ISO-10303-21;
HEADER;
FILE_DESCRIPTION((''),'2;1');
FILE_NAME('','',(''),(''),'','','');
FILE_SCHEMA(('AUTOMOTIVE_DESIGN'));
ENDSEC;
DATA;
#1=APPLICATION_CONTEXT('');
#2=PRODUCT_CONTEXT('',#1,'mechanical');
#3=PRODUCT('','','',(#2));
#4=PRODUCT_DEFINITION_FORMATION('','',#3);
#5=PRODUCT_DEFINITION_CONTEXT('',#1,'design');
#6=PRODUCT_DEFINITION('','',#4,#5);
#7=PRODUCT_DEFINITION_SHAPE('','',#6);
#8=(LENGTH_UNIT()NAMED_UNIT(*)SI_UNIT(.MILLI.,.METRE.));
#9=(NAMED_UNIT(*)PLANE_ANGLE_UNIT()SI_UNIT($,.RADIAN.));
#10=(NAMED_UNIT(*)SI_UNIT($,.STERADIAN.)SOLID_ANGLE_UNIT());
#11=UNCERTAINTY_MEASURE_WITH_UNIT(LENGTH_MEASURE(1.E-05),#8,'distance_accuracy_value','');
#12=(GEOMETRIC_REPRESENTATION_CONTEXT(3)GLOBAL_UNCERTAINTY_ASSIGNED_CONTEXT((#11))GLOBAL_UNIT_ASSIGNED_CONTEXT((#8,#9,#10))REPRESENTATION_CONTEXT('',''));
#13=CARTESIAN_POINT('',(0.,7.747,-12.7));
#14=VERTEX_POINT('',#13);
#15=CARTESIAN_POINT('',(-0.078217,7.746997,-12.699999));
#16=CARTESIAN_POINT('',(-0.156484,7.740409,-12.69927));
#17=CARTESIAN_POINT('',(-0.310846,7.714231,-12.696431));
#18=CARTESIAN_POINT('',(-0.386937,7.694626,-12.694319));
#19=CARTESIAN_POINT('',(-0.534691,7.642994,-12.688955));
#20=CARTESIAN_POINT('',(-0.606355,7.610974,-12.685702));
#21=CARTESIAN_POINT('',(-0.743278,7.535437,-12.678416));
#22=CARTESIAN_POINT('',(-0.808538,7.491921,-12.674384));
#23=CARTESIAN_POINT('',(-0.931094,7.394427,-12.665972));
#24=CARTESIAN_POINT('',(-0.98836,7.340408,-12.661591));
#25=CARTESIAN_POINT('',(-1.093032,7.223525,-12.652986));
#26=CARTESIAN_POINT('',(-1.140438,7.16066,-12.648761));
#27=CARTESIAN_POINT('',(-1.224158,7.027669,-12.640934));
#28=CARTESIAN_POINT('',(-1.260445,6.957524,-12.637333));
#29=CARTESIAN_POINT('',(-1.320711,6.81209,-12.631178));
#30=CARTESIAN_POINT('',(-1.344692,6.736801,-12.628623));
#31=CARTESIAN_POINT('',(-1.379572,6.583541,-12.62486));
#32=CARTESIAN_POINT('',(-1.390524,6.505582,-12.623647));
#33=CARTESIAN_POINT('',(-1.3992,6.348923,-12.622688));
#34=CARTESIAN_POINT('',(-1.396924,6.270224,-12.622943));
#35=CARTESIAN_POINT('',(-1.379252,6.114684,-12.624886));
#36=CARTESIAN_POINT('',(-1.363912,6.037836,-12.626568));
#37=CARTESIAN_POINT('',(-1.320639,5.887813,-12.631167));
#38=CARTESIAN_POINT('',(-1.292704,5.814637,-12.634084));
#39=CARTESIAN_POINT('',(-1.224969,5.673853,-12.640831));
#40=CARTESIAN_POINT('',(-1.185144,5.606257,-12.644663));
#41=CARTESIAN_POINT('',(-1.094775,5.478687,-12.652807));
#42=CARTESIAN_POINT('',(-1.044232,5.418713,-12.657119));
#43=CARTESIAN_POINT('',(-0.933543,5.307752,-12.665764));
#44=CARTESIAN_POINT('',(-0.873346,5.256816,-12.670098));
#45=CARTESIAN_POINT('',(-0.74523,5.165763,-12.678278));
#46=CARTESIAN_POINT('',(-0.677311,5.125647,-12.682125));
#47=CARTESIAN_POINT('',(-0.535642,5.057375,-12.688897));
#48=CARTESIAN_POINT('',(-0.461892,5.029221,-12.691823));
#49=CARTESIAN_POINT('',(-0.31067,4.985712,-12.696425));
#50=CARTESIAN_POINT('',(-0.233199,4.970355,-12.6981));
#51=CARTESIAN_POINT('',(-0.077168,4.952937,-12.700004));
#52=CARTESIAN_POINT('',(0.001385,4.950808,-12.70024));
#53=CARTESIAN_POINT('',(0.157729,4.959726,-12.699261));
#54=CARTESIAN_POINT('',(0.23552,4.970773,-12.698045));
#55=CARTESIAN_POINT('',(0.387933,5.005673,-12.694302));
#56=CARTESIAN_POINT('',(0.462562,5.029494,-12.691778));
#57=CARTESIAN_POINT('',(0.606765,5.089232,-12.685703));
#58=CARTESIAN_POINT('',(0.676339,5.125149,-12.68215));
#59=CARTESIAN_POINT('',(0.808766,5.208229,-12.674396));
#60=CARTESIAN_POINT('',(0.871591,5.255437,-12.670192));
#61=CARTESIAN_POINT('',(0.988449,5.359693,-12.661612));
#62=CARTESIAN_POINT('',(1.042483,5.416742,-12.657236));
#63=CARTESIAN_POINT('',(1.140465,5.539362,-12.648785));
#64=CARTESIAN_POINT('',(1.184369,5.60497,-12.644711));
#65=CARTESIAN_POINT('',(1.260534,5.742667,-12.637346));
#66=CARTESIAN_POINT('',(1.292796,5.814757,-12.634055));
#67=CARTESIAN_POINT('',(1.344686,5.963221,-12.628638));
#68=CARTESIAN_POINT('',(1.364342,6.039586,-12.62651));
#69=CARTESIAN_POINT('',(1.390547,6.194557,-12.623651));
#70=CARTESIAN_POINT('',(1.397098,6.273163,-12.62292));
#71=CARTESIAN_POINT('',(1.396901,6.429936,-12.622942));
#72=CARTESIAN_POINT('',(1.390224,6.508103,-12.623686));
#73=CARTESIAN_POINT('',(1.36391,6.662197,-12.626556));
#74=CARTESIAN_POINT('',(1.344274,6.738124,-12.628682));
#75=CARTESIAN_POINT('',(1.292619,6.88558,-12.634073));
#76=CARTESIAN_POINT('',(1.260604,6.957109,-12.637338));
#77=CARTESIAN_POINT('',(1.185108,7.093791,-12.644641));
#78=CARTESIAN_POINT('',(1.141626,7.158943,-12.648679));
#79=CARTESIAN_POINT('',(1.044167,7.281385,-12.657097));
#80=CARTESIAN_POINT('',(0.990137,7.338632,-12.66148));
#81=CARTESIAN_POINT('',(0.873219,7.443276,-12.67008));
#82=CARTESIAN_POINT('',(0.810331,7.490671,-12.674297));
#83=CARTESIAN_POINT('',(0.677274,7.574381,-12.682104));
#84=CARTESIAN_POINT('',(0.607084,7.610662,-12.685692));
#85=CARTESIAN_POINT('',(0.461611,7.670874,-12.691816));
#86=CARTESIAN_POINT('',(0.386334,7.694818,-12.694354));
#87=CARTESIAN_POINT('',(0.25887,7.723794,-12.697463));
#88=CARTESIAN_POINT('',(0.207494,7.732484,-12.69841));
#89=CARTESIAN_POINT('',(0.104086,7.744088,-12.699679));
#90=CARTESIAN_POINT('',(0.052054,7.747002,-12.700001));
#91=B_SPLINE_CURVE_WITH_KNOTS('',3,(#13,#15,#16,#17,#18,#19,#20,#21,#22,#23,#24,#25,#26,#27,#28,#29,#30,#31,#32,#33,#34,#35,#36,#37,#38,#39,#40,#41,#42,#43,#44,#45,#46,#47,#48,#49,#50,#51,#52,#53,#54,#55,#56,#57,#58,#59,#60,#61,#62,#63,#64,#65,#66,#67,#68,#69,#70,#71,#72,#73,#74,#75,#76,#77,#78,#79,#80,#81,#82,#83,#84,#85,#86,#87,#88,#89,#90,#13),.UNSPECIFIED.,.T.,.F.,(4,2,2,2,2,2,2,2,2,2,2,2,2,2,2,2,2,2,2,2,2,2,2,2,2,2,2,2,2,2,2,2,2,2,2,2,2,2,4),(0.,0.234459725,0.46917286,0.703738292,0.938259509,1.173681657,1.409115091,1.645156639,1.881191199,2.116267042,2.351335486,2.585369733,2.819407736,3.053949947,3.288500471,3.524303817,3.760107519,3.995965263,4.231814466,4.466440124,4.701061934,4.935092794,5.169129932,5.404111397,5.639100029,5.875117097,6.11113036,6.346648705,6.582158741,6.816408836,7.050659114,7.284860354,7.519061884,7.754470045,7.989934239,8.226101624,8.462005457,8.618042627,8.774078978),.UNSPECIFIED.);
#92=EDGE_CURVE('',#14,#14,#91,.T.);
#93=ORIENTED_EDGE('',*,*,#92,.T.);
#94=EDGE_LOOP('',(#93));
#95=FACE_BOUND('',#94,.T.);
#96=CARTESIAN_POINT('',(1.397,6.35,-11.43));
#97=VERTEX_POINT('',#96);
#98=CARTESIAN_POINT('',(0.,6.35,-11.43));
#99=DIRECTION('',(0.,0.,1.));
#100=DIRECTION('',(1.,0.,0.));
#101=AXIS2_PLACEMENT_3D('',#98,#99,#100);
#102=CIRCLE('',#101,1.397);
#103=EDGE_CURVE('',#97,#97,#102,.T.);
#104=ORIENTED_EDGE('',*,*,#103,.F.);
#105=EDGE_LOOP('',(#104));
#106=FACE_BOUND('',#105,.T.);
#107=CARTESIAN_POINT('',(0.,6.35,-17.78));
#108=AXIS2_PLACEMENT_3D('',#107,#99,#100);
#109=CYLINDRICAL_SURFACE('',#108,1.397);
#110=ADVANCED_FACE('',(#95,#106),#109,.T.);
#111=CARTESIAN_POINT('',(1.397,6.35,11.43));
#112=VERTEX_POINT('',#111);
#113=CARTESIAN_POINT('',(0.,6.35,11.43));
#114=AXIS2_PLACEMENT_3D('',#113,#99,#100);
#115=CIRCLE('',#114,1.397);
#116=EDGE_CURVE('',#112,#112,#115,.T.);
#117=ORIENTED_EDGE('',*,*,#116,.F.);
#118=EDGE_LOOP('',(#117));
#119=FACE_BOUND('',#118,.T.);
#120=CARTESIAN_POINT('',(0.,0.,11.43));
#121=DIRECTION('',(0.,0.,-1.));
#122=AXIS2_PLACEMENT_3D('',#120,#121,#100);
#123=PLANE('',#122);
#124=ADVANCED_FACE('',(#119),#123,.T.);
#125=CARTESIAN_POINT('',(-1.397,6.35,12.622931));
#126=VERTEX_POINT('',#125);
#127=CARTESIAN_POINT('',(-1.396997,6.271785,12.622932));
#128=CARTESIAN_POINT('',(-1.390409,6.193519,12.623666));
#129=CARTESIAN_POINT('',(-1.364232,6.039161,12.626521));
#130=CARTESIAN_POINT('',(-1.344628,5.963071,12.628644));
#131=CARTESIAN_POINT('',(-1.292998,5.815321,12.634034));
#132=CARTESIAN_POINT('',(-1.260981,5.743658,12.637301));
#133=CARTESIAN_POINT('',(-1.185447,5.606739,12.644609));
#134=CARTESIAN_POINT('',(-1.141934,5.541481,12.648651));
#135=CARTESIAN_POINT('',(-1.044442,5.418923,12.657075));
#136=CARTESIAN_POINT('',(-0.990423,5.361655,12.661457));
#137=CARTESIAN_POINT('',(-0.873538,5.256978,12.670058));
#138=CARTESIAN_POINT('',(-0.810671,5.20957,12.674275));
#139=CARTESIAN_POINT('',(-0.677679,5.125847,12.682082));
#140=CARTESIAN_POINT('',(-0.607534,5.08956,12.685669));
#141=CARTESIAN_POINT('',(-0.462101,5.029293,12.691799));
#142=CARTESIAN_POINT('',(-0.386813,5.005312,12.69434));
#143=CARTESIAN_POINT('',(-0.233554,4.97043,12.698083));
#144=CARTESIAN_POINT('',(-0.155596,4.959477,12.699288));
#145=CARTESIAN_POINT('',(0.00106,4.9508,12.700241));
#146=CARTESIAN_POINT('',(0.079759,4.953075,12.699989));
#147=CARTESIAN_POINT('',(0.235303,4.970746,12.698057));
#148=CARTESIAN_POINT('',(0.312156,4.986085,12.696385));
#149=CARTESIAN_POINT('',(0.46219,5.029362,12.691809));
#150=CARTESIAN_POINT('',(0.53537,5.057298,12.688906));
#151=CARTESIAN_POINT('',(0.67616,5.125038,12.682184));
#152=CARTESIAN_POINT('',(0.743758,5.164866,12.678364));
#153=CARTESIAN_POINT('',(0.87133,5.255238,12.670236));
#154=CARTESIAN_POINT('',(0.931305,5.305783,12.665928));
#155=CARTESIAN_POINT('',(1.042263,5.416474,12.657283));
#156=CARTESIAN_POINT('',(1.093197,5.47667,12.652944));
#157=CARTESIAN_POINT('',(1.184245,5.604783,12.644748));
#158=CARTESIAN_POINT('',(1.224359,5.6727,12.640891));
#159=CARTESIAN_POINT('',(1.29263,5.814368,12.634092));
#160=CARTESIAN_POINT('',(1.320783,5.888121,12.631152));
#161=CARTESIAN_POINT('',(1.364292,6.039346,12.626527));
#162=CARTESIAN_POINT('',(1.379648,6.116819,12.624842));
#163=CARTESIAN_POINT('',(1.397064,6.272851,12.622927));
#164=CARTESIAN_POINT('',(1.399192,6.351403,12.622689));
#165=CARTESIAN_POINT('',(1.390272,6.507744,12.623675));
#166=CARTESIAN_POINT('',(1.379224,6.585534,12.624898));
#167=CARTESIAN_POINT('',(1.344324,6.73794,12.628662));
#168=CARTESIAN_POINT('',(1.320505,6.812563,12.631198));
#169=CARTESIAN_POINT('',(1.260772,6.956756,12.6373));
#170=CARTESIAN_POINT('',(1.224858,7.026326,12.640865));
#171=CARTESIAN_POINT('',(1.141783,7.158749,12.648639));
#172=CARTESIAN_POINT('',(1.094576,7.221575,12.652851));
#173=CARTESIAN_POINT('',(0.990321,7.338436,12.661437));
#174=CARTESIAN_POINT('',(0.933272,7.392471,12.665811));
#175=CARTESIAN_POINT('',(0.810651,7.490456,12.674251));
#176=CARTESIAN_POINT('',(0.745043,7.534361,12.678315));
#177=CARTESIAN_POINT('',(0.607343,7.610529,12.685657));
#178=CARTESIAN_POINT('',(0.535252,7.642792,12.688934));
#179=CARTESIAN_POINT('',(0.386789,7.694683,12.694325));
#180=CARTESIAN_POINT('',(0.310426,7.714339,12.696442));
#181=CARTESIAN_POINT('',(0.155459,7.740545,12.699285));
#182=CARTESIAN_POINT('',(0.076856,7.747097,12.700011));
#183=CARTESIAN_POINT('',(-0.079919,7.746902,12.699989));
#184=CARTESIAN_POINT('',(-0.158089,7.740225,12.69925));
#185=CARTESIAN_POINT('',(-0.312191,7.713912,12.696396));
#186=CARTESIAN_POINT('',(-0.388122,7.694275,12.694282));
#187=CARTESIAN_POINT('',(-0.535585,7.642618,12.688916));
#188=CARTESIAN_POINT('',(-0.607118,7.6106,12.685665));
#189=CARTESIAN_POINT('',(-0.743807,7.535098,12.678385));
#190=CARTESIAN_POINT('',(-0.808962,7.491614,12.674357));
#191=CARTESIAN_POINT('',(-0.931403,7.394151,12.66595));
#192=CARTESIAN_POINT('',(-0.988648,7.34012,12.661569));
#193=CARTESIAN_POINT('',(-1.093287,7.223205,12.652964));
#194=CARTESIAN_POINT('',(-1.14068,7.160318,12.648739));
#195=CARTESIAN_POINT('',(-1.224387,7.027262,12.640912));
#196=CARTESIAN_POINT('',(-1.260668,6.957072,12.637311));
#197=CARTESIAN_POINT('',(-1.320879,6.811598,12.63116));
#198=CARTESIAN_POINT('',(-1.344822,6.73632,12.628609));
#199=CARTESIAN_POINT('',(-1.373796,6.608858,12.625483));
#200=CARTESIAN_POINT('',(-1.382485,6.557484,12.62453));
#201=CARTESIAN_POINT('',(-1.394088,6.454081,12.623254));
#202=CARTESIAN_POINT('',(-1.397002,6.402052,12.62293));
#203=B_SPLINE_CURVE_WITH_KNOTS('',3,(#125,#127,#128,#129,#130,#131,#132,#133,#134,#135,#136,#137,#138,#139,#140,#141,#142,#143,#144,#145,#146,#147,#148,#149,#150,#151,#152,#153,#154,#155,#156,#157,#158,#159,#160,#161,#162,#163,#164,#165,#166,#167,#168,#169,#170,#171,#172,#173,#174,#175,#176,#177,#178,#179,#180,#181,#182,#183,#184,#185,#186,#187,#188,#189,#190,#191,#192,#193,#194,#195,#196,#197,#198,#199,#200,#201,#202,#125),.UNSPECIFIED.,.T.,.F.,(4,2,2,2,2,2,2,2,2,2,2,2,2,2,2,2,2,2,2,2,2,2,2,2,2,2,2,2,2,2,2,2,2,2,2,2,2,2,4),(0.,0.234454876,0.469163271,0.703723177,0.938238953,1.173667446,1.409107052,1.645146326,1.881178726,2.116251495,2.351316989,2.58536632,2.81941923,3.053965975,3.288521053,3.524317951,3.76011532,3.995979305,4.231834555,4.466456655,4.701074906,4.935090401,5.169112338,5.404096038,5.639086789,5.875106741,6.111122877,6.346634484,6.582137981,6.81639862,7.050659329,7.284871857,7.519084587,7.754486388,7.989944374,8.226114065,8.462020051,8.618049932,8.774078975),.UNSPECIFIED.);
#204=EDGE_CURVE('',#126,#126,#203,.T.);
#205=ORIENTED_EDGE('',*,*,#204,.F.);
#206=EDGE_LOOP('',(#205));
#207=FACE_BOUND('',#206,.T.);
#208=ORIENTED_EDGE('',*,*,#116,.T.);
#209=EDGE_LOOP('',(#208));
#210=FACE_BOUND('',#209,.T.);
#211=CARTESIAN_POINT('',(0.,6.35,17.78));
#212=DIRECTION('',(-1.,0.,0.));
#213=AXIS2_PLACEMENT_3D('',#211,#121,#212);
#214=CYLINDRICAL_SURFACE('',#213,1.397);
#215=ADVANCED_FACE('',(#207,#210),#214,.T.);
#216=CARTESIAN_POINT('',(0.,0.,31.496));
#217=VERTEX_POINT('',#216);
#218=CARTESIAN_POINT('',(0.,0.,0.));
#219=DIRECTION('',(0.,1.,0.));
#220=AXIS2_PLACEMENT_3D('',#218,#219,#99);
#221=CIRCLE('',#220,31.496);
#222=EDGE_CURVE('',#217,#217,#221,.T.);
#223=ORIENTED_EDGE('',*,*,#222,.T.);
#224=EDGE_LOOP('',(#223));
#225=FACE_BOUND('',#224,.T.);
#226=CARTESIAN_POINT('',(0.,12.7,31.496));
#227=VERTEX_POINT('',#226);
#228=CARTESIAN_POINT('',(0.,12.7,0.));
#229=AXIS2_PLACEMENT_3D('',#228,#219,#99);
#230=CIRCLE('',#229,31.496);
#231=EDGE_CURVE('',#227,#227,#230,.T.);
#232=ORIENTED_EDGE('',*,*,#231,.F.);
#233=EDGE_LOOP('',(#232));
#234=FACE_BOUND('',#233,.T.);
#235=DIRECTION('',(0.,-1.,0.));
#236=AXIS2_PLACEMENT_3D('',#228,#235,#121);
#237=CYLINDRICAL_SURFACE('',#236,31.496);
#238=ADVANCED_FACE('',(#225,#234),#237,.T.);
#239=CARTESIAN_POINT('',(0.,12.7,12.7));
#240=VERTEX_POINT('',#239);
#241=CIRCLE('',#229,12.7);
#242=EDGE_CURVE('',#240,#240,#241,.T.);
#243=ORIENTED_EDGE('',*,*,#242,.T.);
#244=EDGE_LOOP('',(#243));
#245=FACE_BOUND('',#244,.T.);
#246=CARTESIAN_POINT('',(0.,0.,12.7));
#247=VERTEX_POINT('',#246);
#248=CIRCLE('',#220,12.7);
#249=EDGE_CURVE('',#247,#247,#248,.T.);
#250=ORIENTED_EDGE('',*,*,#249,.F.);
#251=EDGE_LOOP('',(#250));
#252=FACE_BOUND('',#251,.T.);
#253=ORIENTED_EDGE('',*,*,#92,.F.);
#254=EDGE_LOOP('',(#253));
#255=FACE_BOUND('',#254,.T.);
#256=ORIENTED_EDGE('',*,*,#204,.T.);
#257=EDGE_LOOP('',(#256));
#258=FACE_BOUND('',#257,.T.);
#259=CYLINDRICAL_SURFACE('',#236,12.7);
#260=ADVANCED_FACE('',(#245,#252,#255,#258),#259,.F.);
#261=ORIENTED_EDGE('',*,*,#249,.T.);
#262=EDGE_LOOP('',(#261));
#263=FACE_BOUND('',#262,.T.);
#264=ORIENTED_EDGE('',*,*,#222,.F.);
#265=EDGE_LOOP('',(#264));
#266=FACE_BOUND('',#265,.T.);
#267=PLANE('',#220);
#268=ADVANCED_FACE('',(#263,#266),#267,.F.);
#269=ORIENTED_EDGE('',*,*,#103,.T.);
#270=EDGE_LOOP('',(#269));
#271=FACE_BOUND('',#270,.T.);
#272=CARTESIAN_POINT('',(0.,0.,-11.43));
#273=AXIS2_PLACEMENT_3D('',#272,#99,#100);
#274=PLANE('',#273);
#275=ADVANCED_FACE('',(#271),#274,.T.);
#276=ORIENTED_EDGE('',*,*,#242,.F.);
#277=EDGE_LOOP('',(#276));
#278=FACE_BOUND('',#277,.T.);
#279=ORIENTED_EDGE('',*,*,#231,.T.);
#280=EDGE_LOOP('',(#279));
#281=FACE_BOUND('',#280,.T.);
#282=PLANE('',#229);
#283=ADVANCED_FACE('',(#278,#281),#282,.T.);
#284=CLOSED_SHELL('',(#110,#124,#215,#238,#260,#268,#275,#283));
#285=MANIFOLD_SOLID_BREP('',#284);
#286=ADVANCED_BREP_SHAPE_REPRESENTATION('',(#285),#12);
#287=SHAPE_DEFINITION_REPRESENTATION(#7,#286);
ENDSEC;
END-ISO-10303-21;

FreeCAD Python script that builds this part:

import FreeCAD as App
import Part
import Sketcher
from FreeCAD import Vector
Q = App.Units.Quantity

doc = App.newDocument("Part")
params = doc.addObject("Spreadsheet::Sheet", "Params")
for row, (alias, value) in enumerate([
    ("sketch1_diameter", "1 in"),
    ("sketch1_diameter2", "2.48 in"),
    ("pad1_length", "0.5 in"),
    ("sketch2_diameter", "0.11 in"),
    ("pad2_length", "0.25 in"),
], start=1):
    params.set(f"A{row}", alias)
    params.set(f"B{row}", "=" + value)
    params.setAlias(f"B{row}", alias)

body = doc.addObject("PartDesign::Body", "Body")

# Sketch on XZ plane
sketch1 = doc.addObject("Sketcher::SketchObject", "Sketch")
body.addObject(sketch1)
sketch1.AttachmentSupport = (doc.XZ_Plane, [""])
sketch1.MapMode = "FlatFace"
sketch1.addGeometry([
    Part.Circle(Vector(0, 0, 0), Vector(0, 0, 1), 31),
    Part.Circle(Vector(0, 0, 0), Vector(0, 0, 1), 13),
], False)
sketch1.addConstraint([
    Sketcher.Constraint("Coincident", 0, 3, -1, 1),
    Sketcher.Constraint("Coincident", 1, 3, -1, 1),
    Sketcher.Constraint("Diameter", 1, Q("1 in")),
    Sketcher.Constraint("Diameter", 0, Q("2.48 in")),
])
sketch1.setExpression("Constraints[2]", "Params.sketch1_diameter")
sketch1.setExpression("Constraints[3]", "Params.sketch1_diameter2")
pad1 = doc.addObject("PartDesign::Pad", "Pad")
body.addObject(pad1)
pad1.Profile = sketch1
pad1.setExpression("Length", "Params.pad1_length")
pad1.Reversed = True

# Sketch on XY plane
sketch2 = doc.addObject("Sketcher::SketchObject", "Sketch001")
body.addObject(sketch2)
sketch2.AttachmentSupport = (doc.XY_Plane, [""])
sketch2.MapMode = "FlatFace"
sketch2.AttachmentOffset = App.Placement(Vector(0, 0, -0.7 * 25.4), App.Rotation())
sketch2.addGeometry(Part.Circle(Vector(0, 6.3, 0), Vector(0, 0, 1), 1.4), False)
sketch2.addConstraint([
    Sketcher.Constraint("PointOnObject", 0, 3, -2),
    Sketcher.Constraint("Diameter", 0, Q("0.11 in")),
    Sketcher.Constraint("DistanceY", -1, 1, 0, 3, Q("0.25 in")),
])
sketch2.setExpression("Constraints[1]", "Params.sketch2_diameter")
pad2 = doc.addObject("PartDesign::Pad", "Pad001")
body.addObject(pad2)
pad2.Profile = sketch2
pad2.setExpression("Length", "Params.pad2_length")
doc.recompute()

mirrored = doc.addObject("PartDesign::Mirrored", "Mirrored")
body.addObject(mirrored)
mirrored.Originals = [pad2]
mirrored.MirrorPlane = (doc.XY_Plane, [""])
body.Tip = mirrored

doc.recompute()
